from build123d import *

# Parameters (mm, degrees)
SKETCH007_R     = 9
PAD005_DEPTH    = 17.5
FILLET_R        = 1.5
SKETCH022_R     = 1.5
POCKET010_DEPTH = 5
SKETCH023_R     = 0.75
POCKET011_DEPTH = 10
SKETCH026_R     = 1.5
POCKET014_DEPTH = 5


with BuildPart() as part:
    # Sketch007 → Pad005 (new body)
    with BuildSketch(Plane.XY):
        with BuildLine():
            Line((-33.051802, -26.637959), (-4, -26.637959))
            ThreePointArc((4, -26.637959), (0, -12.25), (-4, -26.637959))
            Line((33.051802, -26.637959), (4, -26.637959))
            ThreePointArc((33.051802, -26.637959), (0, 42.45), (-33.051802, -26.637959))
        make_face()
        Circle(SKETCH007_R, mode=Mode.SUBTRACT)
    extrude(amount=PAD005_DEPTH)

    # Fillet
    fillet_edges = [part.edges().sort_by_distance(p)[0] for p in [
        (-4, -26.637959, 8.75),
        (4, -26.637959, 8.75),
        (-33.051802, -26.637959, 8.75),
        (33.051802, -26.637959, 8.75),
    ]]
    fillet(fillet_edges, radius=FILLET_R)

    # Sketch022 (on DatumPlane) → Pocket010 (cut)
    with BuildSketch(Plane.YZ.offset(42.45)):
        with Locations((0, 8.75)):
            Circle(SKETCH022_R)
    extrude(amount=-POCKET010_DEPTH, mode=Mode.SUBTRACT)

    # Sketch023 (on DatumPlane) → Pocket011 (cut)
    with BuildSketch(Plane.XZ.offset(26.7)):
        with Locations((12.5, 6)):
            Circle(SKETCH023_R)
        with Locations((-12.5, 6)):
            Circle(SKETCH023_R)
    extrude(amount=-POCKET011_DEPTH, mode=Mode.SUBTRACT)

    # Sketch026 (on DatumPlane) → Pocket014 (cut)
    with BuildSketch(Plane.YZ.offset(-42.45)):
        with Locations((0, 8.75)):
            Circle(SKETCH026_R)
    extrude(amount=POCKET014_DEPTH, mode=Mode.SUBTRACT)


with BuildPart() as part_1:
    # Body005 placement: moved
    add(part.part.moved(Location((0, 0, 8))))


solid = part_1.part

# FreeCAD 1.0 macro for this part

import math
import FreeCAD as App
import Part
import Sketcher
Q = App.Units.Quantity


def edges_at(feature, points):
    """Names of the edges that pass closest to the given points."""
    edges = feature.Shape.Edges
    near = lambda p: min(range(len(edges)), key=lambda i: edges[i].distToShape(Part.Vertex(*p))[0])
    return sorted({f"Edge{near(p) + 1}" for p in points})

doc = App.newDocument("Part")
body = doc.addObject("PartDesign::Body", "Body")

# Sketch on XY plane
sketch1 = body.newObject("Sketcher::SketchObject", "Sketch")
sketch1.AttachmentSupport = (doc.getObject("XY_Plane"), [""])
sketch1.MapMode = "FlatFace"
sketch1.addGeometry([
    Part.LineSegment(App.Vector(-33, -27, 0), App.Vector(-4, -27, 0)),  # 0
    Part.ArcOfCircle(Part.Circle(App.Vector(0, -20, 0), App.Vector(0, 0, 1), 8), math.radians(-59), math.radians(239)),  # 1
    Part.LineSegment(App.Vector(4, -27, 0), App.Vector(33, -27, 0)),  # 2
    Part.ArcOfCircle(Part.Circle(App.Vector(0, 0, 0), App.Vector(0, 0, 1), 42), math.radians(-39), math.radians(219)),  # 3
    Part.Circle(App.Vector(0, 0, 0), App.Vector(0, 0, 1), 9),  # 4
], False)
sketch1.addConstraint([
    Sketcher.Constraint("Coincident", 0, 2, 1, 2),
    Sketcher.Constraint("Coincident", 1, 1, 2, 1),
    Sketcher.Constraint("Coincident", 2, 2, 3, 1),
    Sketcher.Constraint("Coincident", 3, 2, 0, 1),
    Sketcher.Constraint("Horizontal", 0),
    Sketcher.Constraint("Horizontal", 2),
    Sketcher.Constraint("Coincident", 3, 3, -1, 1),
    Sketcher.Constraint("Coincident", 4, 3, -1, 1),
    Sketcher.Constraint("Symmetric", 0, 2, 1, 1, -2),
    Sketcher.Constraint("Diameter", 4, Q("18 mm")),
    Sketcher.Constraint("Radius", 1, Q("7.75 mm")),
    Sketcher.Constraint("Radius", 3, Q("42.45 mm")),
    Sketcher.Constraint("DistanceY", 1, 3, -1, 1, Q("20 mm")),
    Sketcher.Constraint("DistanceX", 0, 2, -1, 1, Q("4 mm")),
])
pad1 = body.newObject("PartDesign::Pad", "Pad")
pad1.Profile = sketch1
pad1.Length = 17.5
doc.recompute()

fillet = body.newObject("PartDesign::Fillet", "Fillet")
fillet.Base = (pad1, edges_at(pad1, [
    (-4, -26.638, 8.75),
    (4, -26.638, 8.75),
    (-33.052, -26.638, 8.75),
    (33.052, -26.638, 8.75),
]))
fillet.Radius = 1.5

# Sketch on YZ plane
sketch2 = body.newObject("Sketcher::SketchObject", "Sketch001")
sketch2.AttachmentSupport = (doc.getObject("YZ_Plane"), [""])
sketch2.MapMode = "FlatFace"
sketch2.AttachmentOffset = App.Placement(App.Vector(0, 0, 42.45), App.Rotation())
sketch2.addGeometry(Part.Circle(App.Vector(0, 8.8, 0), App.Vector(0, 0, 1), 1.5), False)
sketch2.addConstraint([
    Sketcher.Constraint("PointOnObject", 0, 3, -2),
    Sketcher.Constraint("Diameter", 0, Q("3 mm")),
    Sketcher.Constraint("DistanceY", -1, 1, 0, 3, Q("8.75 mm")),
])
pocket1 = body.newObject("PartDesign::Pocket", "Pocket")
pocket1.Profile = sketch2
pocket1.Length = 5

# Sketch on XZ plane
sketch3 = body.newObject("Sketcher::SketchObject", "Sketch002")
sketch3.AttachmentSupport = (doc.getObject("XZ_Plane"), [""])
sketch3.MapMode = "FlatFace"
sketch3.AttachmentOffset = App.Placement(App.Vector(0, 0, 26.7), App.Rotation())
sketch3.addGeometry([
    Part.Circle(App.Vector(12.5, 6, 0), App.Vector(0, 0, 1), 0.8),
    Part.Circle(App.Vector(-12.5, 6, 0), App.Vector(0, 0, 1), 0.8),
], False)
sketch3.addConstraint([
    Sketcher.Constraint("Equal", 0, 1),
    Sketcher.Constraint("Symmetric", 0, 3, 1, 3, -2),
    Sketcher.Constraint("Diameter", 0, Q("1.5 mm")),
    Sketcher.Constraint("DistanceY", -1, 1, 0, 3, Q("6 mm")),
    Sketcher.Constraint("DistanceX", 1, 3, 0, 3, Q("25 mm")),
])
pocket2 = body.newObject("PartDesign::Pocket", "Pocket001")
pocket2.Profile = sketch3
pocket2.Length = 10

# Sketch on YZ plane
sketch4 = body.newObject("Sketcher::SketchObject", "Sketch003")
sketch4.AttachmentSupport = (doc.getObject("YZ_Plane"), [""])
sketch4.MapMode = "FlatFace"
sketch4.AttachmentOffset = App.Placement(App.Vector(0, 0, -42.45), App.Rotation())
sketch4.addGeometry(Part.Circle(App.Vector(0, 8.8, 0), App.Vector(0, 0, 1), 1.5), False)
sketch4.addConstraint([
    Sketcher.Constraint("PointOnObject", 0, 3, -2),
    Sketcher.Constraint("Diameter", 0, Q("3 mm")),
    Sketcher.Constraint("DistanceY", -1, 1, 0, 3, Q("8.75 mm")),
])
pocket3 = body.newObject("PartDesign::Pocket", "Pocket002")
pocket3.Profile = sketch4
pocket3.Length = 5
pocket3.Reversed = True
body2 = doc.addObject("PartDesign::Body", "Body001")
doc.recompute()

body.Placement = App.Placement(App.Vector(0, 0, 8), App.Rotation(App.Vector(0, 0, 1), 0))
boolean = body2.newObject("PartDesign::Boolean", "Boolean")
boolean.Type = "Fuse"
boolean.addObjects([body])

doc.recompute()
